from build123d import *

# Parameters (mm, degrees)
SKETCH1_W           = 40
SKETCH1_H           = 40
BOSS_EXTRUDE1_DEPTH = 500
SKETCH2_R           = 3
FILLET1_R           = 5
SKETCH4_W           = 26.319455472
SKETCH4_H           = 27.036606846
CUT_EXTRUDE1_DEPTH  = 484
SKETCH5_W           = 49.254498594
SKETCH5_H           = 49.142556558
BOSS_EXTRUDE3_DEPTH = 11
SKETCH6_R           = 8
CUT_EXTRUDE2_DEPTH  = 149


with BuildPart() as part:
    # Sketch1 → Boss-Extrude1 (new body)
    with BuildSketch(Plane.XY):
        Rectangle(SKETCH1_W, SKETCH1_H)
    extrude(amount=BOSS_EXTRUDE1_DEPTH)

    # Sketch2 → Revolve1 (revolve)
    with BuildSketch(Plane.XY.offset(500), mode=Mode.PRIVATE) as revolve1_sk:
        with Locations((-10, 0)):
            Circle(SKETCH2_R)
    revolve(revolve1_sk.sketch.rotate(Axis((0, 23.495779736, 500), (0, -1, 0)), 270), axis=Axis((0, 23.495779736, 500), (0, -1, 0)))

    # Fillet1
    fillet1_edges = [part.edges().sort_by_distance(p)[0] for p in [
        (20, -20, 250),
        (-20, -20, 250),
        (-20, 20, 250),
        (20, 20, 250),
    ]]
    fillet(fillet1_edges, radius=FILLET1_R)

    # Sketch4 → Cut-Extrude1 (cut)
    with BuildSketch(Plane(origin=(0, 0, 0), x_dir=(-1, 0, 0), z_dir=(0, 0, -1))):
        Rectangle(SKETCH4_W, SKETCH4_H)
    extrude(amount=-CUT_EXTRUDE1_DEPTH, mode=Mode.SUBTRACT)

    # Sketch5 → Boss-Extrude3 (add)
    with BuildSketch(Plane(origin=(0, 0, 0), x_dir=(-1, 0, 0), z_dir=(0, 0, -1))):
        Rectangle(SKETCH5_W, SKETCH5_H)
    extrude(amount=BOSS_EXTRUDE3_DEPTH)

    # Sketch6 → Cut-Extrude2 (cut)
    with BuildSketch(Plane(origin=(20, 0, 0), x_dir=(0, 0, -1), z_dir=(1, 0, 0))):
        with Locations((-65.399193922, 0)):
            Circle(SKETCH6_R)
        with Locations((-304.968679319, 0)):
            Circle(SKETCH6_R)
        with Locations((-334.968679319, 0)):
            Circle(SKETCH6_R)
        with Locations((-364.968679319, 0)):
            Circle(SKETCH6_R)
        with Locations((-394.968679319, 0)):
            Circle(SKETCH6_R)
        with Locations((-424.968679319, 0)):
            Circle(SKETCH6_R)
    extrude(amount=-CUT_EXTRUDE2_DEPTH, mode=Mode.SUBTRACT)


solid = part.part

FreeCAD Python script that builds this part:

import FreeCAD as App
import Part
import Sketcher
Q = App.Units.Quantity


def edges_at(feature, points):
    """Names of the edges that pass closest to the given points."""
    edges = feature.Shape.Edges
    near = lambda p: min(range(len(edges)), key=lambda i: edges[i].distToShape(Part.Vertex(*p))[0])
    return sorted({f"Edge{near(p) + 1}" for p in points})

doc = App.newDocument("Part")
body = doc.addObject("PartDesign::Body", "Body")

# Sketch on XY plane
sketch1 = body.newObject("Sketcher::SketchObject", "Sketch")
sketch1.AttachmentSupport = (doc.getObject("XY_Plane"), [""])
sketch1.MapMode = "FlatFace"
sketch1.addGeometry([
    Part.LineSegment(App.Vector(-20, 20, 0), App.Vector(-20, -20, 0)),
    Part.LineSegment(App.Vector(-20, -20, 0), App.Vector(20, -20, 0)),
    Part.LineSegment(App.Vector(20, -20, 0), App.Vector(20, 20, 0)),
    Part.LineSegment(App.Vector(20, 20, 0), App.Vector(-20, 20, 0)),
], False)
sketch1.addConstraint([
    Sketcher.Constraint("Coincident", 0, 2, 1, 1),
    Sketcher.Constraint("Coincident", 1, 2, 2, 1),
    Sketcher.Constraint("Coincident", 2, 2, 3, 1),
    Sketcher.Constraint("Coincident", 3, 2, 0, 1),
    Sketcher.Constraint("Vertical", 0),
    Sketcher.Constraint("Horizontal", 1),
    Sketcher.Constraint("Vertical", 2),
    Sketcher.Constraint("Horizontal", 3),
    Sketcher.Constraint("Symmetric", 0, 2, 2, 2, -1, 1),
    Sketcher.Constraint("Equal", 3, 0),
    Sketcher.Constraint("DistanceX", 1, 1, 1, 2, Q("40 mm")),
])
pad1 = body.newObject("PartDesign::Pad", "Pad")
pad1.Profile = sketch1
pad1.Length = 500

# Sketch on XY plane
sketch2 = body.newObject("Sketcher::SketchObject", "Sketch001")
sketch2.AttachmentSupport = (doc.getObject("XY_Plane"), [""])
sketch2.MapMode = "FlatFace"
sketch2.AttachmentOffset = App.Placement(App.Vector(0, 0, 500), App.Rotation())
sketch2.addGeometry(Part.Circle(App.Vector(-10, 0, 0), App.Vector(0, 0, 1), 3), False)
sketch2.addConstraint([
    Sketcher.Constraint("PointOnObject", 0, 3, -1),
    Sketcher.Constraint("Diameter", 0, Q("6 mm")),
    Sketcher.Constraint("DistanceX", 0, 3, -1, 1, Q("10 mm")),
])
revolution = body.newObject("PartDesign::Revolution", "Revolution")
revolution.Profile = sketch2
revolution.ReferenceAxis = (sketch2, ["V_Axis"])
revolution.Angle = 360
doc.recompute()

fillet = body.newObject("PartDesign::Fillet", "Fillet")
fillet.Base = (revolution, edges_at(revolution, [
    (20, -20, 250),
    (-20, -20, 250),
    (-20, 20, 250),
    (20, 20, 250),
]))
fillet.Radius = 5

# Sketch on XY plane
sketch3 = body.newObject("Sketcher::SketchObject", "Sketch002")
sketch3.AttachmentSupport = (doc.getObject("XY_Plane"), [""])
sketch3.MapMode = "FlatFace"
sketch3.addGeometry([
    Part.LineSegment(App.Vector(13, 14, 0), App.Vector(13, -14, 0)),
    Part.LineSegment(App.Vector(13, -14, 0), App.Vector(-13, -14, 0)),
    Part.LineSegment(App.Vector(-13, -14, 0), App.Vector(-13, 14, 0)),
    Part.LineSegment(App.Vector(-13, 14, 0), App.Vector(13, 14, 0)),
], False)
sketch3.addConstraint([
    Sketcher.Constraint("Coincident", 0, 2, 1, 1),
    Sketcher.Constraint("Coincident", 1, 2, 2, 1),
    Sketcher.Constraint("Coincident", 2, 2, 3, 1),
    Sketcher.Constraint("Coincident", 3, 2, 0, 1),
    Sketcher.Constraint("Vertical", 0),
    Sketcher.Constraint("Horizontal", 1),
    Sketcher.Constraint("Vertical", 2),
    Sketcher.Constraint("Horizontal", 3),
    Sketcher.Constraint("Symmetric", 0, 2, 2, 2, -1, 1),
    Sketcher.Constraint("DistanceX", 1, 2, 1, 1, Q("26.319455 mm")),
    Sketcher.Constraint("DistanceY", 0, 2, 0, 1, Q("27.036607 mm")),
])
pocket1 = body.newObject("PartDesign::Pocket", "Pocket")
pocket1.Profile = sketch3
pocket1.Length = 484
pocket1.Reversed = True

# Sketch on XY plane
sketch4 = body.newObject("Sketcher::SketchObject", "Sketch003")
sketch4.AttachmentSupport = (doc.getObject("XY_Plane"), [""])
sketch4.MapMode = "FlatFace"
sketch4.addGeometry([
    Part.LineSegment(App.Vector(25, 25, 0), App.Vector(25, -25, 0)),
    Part.LineSegment(App.Vector(25, -25, 0), App.Vector(-25, -25, 0)),
    Part.LineSegment(App.Vector(-25, -25, 0), App.Vector(-25, 25, 0)),
    Part.LineSegment(App.Vector(-25, 25, 0), App.Vector(25, 25, 0)),
], False)
sketch4.addConstraint([
    Sketcher.Constraint("Coincident", 0, 2, 1, 1),
    Sketcher.Constraint("Coincident", 1, 2, 2, 1),
    Sketcher.Constraint("Coincident", 2, 2, 3, 1),
    Sketcher.Constraint("Coincident", 3, 2, 0, 1),
    Sketcher.Constraint("Vertical", 0),
    Sketcher.Constraint("Horizontal", 1),
    Sketcher.Constraint("Vertical", 2),
    Sketcher.Constraint("Horizontal", 3),
    Sketcher.Constraint("Symmetric", 0, 2, 2, 2, -1, 1),
    Sketcher.Constraint("DistanceX", 1, 2, 1, 1, Q("49.254499 mm")),
    Sketcher.Constraint("DistanceY", 0, 2, 0, 1, Q("49.142557 mm")),
])
pad2 = body.newObject("PartDesign::Pad", "Pad001")
pad2.Profile = sketch4
pad2.Length = 11
pad2.Reversed = True

# Sketch on YZ plane
sketch5 = body.newObject("Sketcher::SketchObject", "Sketch004")
sketch5.AttachmentSupport = (doc.getObject("YZ_Plane"), [""])
sketch5.MapMode = "FlatFace"
sketch5.AttachmentOffset = App.Placement(App.Vector(0, 0, 20), App.Rotation())
sketch5.addGeometry([
    Part.Circle(App.Vector(0, 65, 0), App.Vector(0, 0, 1), 8),  # 0
    Part.Circle(App.Vector(0, 305, 0), App.Vector(0, 0, 1), 8),  # 1
    Part.Circle(App.Vector(0, 335, 0), App.Vector(0, 0, 1), 8),  # 2
    Part.Circle(App.Vector(0, 365, 0), App.Vector(0, 0, 1), 8),  # 3
    Part.Circle(App.Vector(0, 395, 0), App.Vector(0, 0, 1), 8),  # 4
    Part.Circle(App.Vector(0, 425, 0), App.Vector(0, 0, 1), 8),  # 5
], False)
sketch5.addConstraint([
    Sketcher.Constraint("Equal", 0, 1),
    Sketcher.Constraint("Equal", 1, 2),
    Sketcher.Constraint("Equal", 2, 3),
    Sketcher.Constraint("Equal", 3, 4),
    Sketcher.Constraint("Equal", 4, 5),
    Sketcher.Constraint("PointOnObject", 0, 3, -2),
    Sketcher.Constraint("PointOnObject", 1, 3, -2),
    Sketcher.Constraint("PointOnObject", 2, 3, -2),
    Sketcher.Constraint("PointOnObject", 3, 3, -2),
    Sketcher.Constraint("PointOnObject", 4, 3, -2),
    Sketcher.Constraint("PointOnObject", 5, 3, -2),
    Sketcher.Constraint("Diameter", 0, Q("16 mm")),
    Sketcher.Constraint("DistanceY", 1, 3, 2, 3, Q("30 mm")),
    Sketcher.Constraint("DistanceY", 2, 3, 3, 3, Q("30 mm")),
    Sketcher.Constraint("DistanceY", 3, 3, 4, 3, Q("30 mm")),
    Sketcher.Constraint("DistanceY", 4, 3, 5, 3, Q("30 mm")),
    Sketcher.Constraint("DistanceY", -1, 1, 1, 3, Q("304.968679 mm")),
    Sketcher.Constraint("DistanceY", -1, 1, 0, 3, Q("65.399194 mm")),
])
pocket2 = body.newObject("PartDesign::Pocket", "Pocket001")
pocket2.Profile = sketch5
pocket2.Length = 149

doc.recompute()
